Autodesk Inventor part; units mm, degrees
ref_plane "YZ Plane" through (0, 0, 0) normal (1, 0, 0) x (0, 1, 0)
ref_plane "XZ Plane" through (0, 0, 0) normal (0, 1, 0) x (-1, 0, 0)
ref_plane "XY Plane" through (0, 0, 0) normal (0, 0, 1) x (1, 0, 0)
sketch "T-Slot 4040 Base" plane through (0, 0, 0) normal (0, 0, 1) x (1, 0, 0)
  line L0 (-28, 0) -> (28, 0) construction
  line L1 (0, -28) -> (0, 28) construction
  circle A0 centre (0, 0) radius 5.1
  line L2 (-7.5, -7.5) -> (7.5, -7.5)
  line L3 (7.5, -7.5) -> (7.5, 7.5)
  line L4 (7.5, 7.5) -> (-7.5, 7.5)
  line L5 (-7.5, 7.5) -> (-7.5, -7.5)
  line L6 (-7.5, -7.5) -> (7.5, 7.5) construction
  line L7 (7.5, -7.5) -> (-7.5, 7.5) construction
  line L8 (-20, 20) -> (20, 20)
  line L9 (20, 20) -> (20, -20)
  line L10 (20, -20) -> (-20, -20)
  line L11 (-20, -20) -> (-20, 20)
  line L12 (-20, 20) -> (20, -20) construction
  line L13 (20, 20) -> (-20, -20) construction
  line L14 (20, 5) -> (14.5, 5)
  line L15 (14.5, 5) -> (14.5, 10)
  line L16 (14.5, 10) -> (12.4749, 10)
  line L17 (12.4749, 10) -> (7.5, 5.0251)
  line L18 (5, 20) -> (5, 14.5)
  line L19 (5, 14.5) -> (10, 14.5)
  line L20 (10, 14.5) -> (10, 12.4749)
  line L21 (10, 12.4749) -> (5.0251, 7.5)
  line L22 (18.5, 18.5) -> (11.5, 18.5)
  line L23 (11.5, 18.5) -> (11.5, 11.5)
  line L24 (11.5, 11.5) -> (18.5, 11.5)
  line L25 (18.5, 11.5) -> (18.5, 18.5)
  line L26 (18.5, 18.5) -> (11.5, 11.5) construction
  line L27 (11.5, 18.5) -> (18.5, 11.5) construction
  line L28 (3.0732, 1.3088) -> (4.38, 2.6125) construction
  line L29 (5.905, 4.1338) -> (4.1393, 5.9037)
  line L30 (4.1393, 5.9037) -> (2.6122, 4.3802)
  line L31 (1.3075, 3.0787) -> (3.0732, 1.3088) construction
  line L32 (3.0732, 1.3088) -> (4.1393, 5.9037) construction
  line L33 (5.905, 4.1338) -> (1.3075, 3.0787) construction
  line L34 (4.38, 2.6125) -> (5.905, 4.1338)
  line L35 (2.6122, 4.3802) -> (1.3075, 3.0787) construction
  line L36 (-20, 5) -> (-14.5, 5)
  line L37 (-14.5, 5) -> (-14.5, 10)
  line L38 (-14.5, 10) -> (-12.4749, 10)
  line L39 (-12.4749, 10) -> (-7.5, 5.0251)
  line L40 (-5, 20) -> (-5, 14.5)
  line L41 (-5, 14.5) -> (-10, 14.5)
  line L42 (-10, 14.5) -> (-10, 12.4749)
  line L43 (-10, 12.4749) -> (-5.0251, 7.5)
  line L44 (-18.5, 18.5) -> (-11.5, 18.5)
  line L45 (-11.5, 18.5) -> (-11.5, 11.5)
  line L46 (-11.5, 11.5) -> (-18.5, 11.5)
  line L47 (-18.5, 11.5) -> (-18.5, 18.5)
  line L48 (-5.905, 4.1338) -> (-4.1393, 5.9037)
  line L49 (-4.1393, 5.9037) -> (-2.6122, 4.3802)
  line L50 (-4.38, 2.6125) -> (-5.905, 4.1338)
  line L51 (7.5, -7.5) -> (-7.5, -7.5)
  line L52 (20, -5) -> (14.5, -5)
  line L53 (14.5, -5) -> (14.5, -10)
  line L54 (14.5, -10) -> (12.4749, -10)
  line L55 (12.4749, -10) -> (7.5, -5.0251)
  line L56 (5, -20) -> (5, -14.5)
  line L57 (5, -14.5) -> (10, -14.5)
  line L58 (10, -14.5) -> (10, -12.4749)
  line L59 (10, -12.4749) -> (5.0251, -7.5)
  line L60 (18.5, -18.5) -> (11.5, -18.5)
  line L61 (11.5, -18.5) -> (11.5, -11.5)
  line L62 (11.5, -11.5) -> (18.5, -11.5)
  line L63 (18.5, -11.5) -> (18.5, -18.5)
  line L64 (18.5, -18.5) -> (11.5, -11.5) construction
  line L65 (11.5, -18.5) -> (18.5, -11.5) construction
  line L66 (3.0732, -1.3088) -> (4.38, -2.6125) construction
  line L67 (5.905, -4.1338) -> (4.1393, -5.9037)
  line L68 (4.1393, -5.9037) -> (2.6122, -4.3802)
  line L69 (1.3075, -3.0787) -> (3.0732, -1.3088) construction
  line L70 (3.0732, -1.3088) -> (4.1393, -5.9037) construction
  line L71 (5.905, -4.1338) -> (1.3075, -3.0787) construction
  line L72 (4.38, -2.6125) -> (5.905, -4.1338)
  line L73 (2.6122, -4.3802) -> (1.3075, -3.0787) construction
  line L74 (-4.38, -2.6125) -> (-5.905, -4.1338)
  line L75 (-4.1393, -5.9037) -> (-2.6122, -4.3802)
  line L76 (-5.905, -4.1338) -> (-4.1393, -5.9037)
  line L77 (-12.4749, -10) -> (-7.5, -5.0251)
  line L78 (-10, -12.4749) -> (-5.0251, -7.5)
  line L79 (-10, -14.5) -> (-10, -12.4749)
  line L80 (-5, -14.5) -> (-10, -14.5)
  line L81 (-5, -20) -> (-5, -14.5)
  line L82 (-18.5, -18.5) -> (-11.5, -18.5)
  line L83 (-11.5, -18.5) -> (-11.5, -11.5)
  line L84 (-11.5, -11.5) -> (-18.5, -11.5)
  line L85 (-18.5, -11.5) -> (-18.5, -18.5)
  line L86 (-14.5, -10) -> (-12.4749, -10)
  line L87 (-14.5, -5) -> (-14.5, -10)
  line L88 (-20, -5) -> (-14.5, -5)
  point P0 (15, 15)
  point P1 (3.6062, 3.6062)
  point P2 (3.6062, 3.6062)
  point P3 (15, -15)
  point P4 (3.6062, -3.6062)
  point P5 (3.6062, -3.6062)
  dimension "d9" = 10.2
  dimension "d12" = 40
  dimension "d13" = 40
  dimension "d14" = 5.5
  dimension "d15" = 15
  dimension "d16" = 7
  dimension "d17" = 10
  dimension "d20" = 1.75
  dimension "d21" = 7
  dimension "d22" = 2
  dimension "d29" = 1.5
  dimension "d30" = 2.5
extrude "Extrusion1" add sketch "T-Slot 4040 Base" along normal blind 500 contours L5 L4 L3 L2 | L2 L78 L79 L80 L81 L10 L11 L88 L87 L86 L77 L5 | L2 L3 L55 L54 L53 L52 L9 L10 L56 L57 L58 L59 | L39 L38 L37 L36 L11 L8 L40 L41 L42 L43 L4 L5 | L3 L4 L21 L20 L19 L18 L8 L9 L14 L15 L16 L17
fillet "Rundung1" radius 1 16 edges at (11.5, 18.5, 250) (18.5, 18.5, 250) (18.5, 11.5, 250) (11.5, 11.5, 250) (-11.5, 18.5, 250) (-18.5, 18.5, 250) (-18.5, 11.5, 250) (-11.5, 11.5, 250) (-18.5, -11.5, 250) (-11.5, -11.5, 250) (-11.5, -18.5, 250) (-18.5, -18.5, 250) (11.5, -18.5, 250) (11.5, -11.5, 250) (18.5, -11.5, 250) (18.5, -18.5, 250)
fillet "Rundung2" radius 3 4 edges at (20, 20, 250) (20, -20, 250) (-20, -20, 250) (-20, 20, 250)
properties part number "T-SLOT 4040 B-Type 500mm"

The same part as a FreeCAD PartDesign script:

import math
import FreeCAD as App
import Part
import Sketcher
from FreeCAD import Vector
Q = App.Units.Quantity


def edges_at(feature, points):
    """Names of the edges that pass closest to the given points."""
    edges = feature.Shape.Edges
    near = lambda p: min(range(len(edges)), key=lambda i: edges[i].distToShape(Part.Vertex(*p))[0])
    return sorted({f"Edge{near(p) + 1}" for p in points})


def add_polygon(sketch, points):
    """Adds a closed chain of lines whose ends are joined by coincident constraints."""
    first, n = sketch.GeometryCount, len(points)
    for a, b in zip(points, points[1:] + points[:1]):
        sketch.addGeometry(Part.LineSegment(App.Vector(*a, 0), App.Vector(*b, 0)), False)
    for i in range(n):
        sketch.addConstraint(Sketcher.Constraint("Coincident", first + i, 2, first + (i + 1) % n, 1))

doc = App.newDocument("Part")
params = doc.addObject("Spreadsheet::Sheet", "Params")
for row, (alias, value) in enumerate([
    ("sketch1_radius", "5.1 mm"),
    ("sketch1_width", "15 mm"),
    ("sketch1_width2", "7 mm"),
    ("sketch1_width3", "5.5 mm"),
    ("sketch1_length", "2.5 mm"),
    ("pad1_length", "500 mm"),
    ("fillet_radius", "1 mm"),
    ("fillet2_radius", "3 mm"),
], start=1):
    params.set(f"A{row}", alias)
    params.set(f"B{row}", "=" + value)
    params.setAlias(f"B{row}", alias)

body = doc.addObject("PartDesign::Body", "Body")

sketch1 = body.newObject("Sketcher::SketchObject", "Sketch")
sketch1.AttachmentSupport = (doc.getObject("XY_Plane"), [""])
sketch1.MapMode = "FlatFace"
add_polygon(sketch1, [(-7.5, 5), (-7.5, -5), (-12.5, -10), (-14.5, -10), (-14.5, -5), (-20, -5), (-20, -20), (-5, -20), (-5, -14.5), (-10, -14.5), (-10, -12.5), (-5, -7.5), (5, -7.5), (10, -12.5), (10, -14.5), (5, -14.5), (5, -20), (20, -20), (20, -5), (14.5, -5), (14.5, -10), (12.5, -10), (7.5, -5), (7.5, 5), (12.5, 10), (14.5, 10), (14.5, 5), (20, 5), (20, 20), (5, 20), (5, 14.5), (10, 14.5), (10, 12.5), (5, 7.5), (-5, 7.5), (-10, 12.5), (-10, 14.5), (-5, 14.5), (-5, 20), (-20, 20), (-20, 5), (-14.5, 5), (-14.5, 10), (-12.5, 10)])
sketch1.addGeometry(Part.ArcOfCircle(Part.Circle(Vector(0, 0, 0), Vector(0, 0, 1), 5.1), math.radians(-31), math.radians(31)), False)
sketch1.addGeometry(Part.LineSegment(Vector(4.4, -2.6, 0), Vector(5.9, -4.1, 0)), False)
sketch1.addGeometry(Part.LineSegment(Vector(5.9, -4.1, 0), Vector(4.1, -5.9, 0)), False)
sketch1.addGeometry(Part.LineSegment(Vector(4.1, -5.9, 0), Vector(2.6, -4.4, 0)), False)
sketch1.addGeometry(Part.ArcOfCircle(Part.Circle(Vector(0, 0, 0), Vector(0, 0, 1), 5.1), math.radians(-121), math.radians(-59)), False)
sketch1.addGeometry(Part.LineSegment(Vector(-2.6, -4.4, 0), Vector(-4.1, -5.9, 0)), False)
sketch1.addGeometry(Part.LineSegment(Vector(-4.1, -5.9, 0), Vector(-5.9, -4.1, 0)), False)
sketch1.addGeometry(Part.LineSegment(Vector(-5.9, -4.1, 0), Vector(-4.4, -2.6, 0)), False)
sketch1.addGeometry(Part.ArcOfCircle(Part.Circle(Vector(0, 0, 0), Vector(0, 0, 1), 5.1), math.radians(149), math.radians(211)), False)
sketch1.addGeometry(Part.LineSegment(Vector(-4.4, 2.6, 0), Vector(-5.9, 4.1, 0)), False)
sketch1.addGeometry(Part.LineSegment(Vector(-5.9, 4.1, 0), Vector(-4.1, 5.9, 0)), False)
sketch1.addGeometry(Part.LineSegment(Vector(-4.1, 5.9, 0), Vector(-2.6, 4.4, 0)), False)
sketch1.addGeometry(Part.ArcOfCircle(Part.Circle(Vector(0, 0, 0), Vector(0, 0, 1), 5.1), math.radians(59), math.radians(121)), False)
sketch1.addGeometry(Part.LineSegment(Vector(2.6, 4.4, 0), Vector(4.1, 5.9, 0)), False)
sketch1.addGeometry(Part.LineSegment(Vector(4.1, 5.9, 0), Vector(5.9, 4.1, 0)), False)
sketch1.addGeometry(Part.LineSegment(Vector(5.9, 4.1, 0), Vector(4.4, 2.6, 0)), False)
add_polygon(sketch1, [(-18.5, -11.5), (-11.5, -11.5), (-11.5, -18.5), (-18.5, -18.5)])
add_polygon(sketch1, [(-11.5, 18.5), (-11.5, 11.5), (-18.5, 11.5), (-18.5, 18.5)])
add_polygon(sketch1, [(18.5, 11.5), (11.5, 11.5), (11.5, 18.5), (18.5, 18.5)])
add_polygon(sketch1, [(11.5, -18.5), (11.5, -11.5), (18.5, -11.5), (18.5, -18.5)])
sketch1.addConstraint(Sketcher.Constraint("Coincident", 44, 1, 45, 1))
sketch1.addConstraint(Sketcher.Constraint("Coincident", 45, 2, 46, 1))
sketch1.addConstraint(Sketcher.Constraint("Coincident", 46, 2, 47, 1))
sketch1.addConstraint(Sketcher.Constraint("Coincident", 47, 2, 48, 2))
sketch1.addConstraint(Sketcher.Constraint("Coincident", 48, 1, 49, 1))
sketch1.addConstraint(Sketcher.Constraint("Coincident", 49, 2, 50, 1))
sketch1.addConstraint(Sketcher.Constraint("Coincident", 50, 2, 51, 1))
sketch1.addConstraint(Sketcher.Constraint("Coincident", 51, 2, 52, 2))
sketch1.addConstraint(Sketcher.Constraint("Coincident", 52, 1, 53, 1))
sketch1.addConstraint(Sketcher.Constraint("Coincident", 53, 2, 54, 1))
sketch1.addConstraint(Sketcher.Constraint("Coincident", 54, 2, 55, 1))
sketch1.addConstraint(Sketcher.Constraint("Coincident", 55, 2, 56, 2))
sketch1.addConstraint(Sketcher.Constraint("Coincident", 56, 1, 57, 1))
sketch1.addConstraint(Sketcher.Constraint("Coincident", 57, 2, 58, 1))
sketch1.addConstraint(Sketcher.Constraint("Coincident", 58, 2, 59, 1))
sketch1.addConstraint(Sketcher.Constraint("Coincident", 59, 2, 44, 2))
sketch1.addConstraint(Sketcher.Constraint("Vertical", 0))
sketch1.addConstraint(Sketcher.Constraint("Horizontal", 2))
sketch1.addConstraint(Sketcher.Constraint("Vertical", 3))
sketch1.addConstraint(Sketcher.Constraint("Horizontal", 4))
sketch1.addConstraint(Sketcher.Constraint("Vertical", 5))
sketch1.addConstraint(Sketcher.Constraint("Horizontal", 6))
sketch1.addConstraint(Sketcher.Constraint("Vertical", 7))
sketch1.addConstraint(Sketcher.Constraint("Horizontal", 8))
sketch1.addConstraint(Sketcher.Constraint("Vertical", 9))
sketch1.addConstraint(Sketcher.Constraint("Horizontal", 11))
sketch1.addConstraint(Sketcher.Constraint("Vertical", 13))
sketch1.addConstraint(Sketcher.Constraint("Horizontal", 14))
sketch1.addConstraint(Sketcher.Constraint("Vertical", 15))
sketch1.addConstraint(Sketcher.Constraint("Horizontal", 16))
sketch1.addConstraint(Sketcher.Constraint("Vertical", 17))
sketch1.addConstraint(Sketcher.Constraint("Horizontal", 18))
sketch1.addConstraint(Sketcher.Constraint("Vertical", 19))
sketch1.addConstraint(Sketcher.Constraint("Horizontal", 20))
sketch1.addConstraint(Sketcher.Constraint("Vertical", 22))
sketch1.addConstraint(Sketcher.Constraint("Horizontal", 24))
sketch1.addConstraint(Sketcher.Constraint("Vertical", 25))
sketch1.addConstraint(Sketcher.Constraint("Horizontal", 26))
sketch1.addConstraint(Sketcher.Constraint("Vertical", 27))
sketch1.addConstraint(Sketcher.Constraint("Horizontal", 28))
sketch1.addConstraint(Sketcher.Constraint("Vertical", 29))
sketch1.addConstraint(Sketcher.Constraint("Horizontal", 30))
sketch1.addConstraint(Sketcher.Constraint("Vertical", 31))
sketch1.addConstraint(Sketcher.Constraint("Horizontal", 33))
sketch1.addConstraint(Sketcher.Constraint("Vertical", 35))
sketch1.addConstraint(Sketcher.Constraint("Horizontal", 36))
sketch1.addConstraint(Sketcher.Constraint("Vertical", 37))
sketch1.addConstraint(Sketcher.Constraint("Horizontal", 38))
sketch1.addConstraint(Sketcher.Constraint("Vertical", 39))
sketch1.addConstraint(Sketcher.Constraint("Horizontal", 40))
sketch1.addConstraint(Sketcher.Constraint("Vertical", 41))
sketch1.addConstraint(Sketcher.Constraint("Horizontal", 42))
sketch1.addConstraint(Sketcher.Constraint("Horizontal", 60))
sketch1.addConstraint(Sketcher.Constraint("Vertical", 61))
sketch1.addConstraint(Sketcher.Constraint("Horizontal", 62))
sketch1.addConstraint(Sketcher.Constraint("Vertical", 63))
sketch1.addConstraint(Sketcher.Constraint("Vertical", 64))
sketch1.addConstraint(Sketcher.Constraint("Horizontal", 65))
sketch1.addConstraint(Sketcher.Constraint("Vertical", 66))
sketch1.addConstraint(Sketcher.Constraint("Horizontal", 67))
sketch1.addConstraint(Sketcher.Constraint("Horizontal", 68))
sketch1.addConstraint(Sketcher.Constraint("Vertical", 69))
sketch1.addConstraint(Sketcher.Constraint("Horizontal", 70))
sketch1.addConstraint(Sketcher.Constraint("Vertical", 71))
sketch1.addConstraint(Sketcher.Constraint("Vertical", 72))
sketch1.addConstraint(Sketcher.Constraint("Horizontal", 73))
sketch1.addConstraint(Sketcher.Constraint("Vertical", 74))
sketch1.addConstraint(Sketcher.Constraint("Horizontal", 75))
sketch1.addConstraint(Sketcher.Constraint("Coincident", 44, 3, -1, 1))
sketch1.addConstraint(Sketcher.Constraint("Coincident", 48, 3, -1, 1))
sketch1.addConstraint(Sketcher.Constraint("Coincident", 52, 3, -1, 1))
sketch1.addConstraint(Sketcher.Constraint("Coincident", 56, 3, -1, 1))
sketch1.addConstraint(Sketcher.Constraint("Equal", 44, 48))
sketch1.addConstraint(Sketcher.Constraint("Equal", 48, 52))
sketch1.addConstraint(Sketcher.Constraint("Equal", 52, 56))
sketch1.addConstraint(Sketcher.Constraint("Symmetric", 0, 2, 22, 2, -1, 1))
sketch1.addConstraint(Sketcher.Constraint("Symmetric", 1, 2, 23, 2, -1, 1))
sketch1.addConstraint(Sketcher.Constraint("Symmetric", 3, 2, 25, 2, -1, 1))
sketch1.addConstraint(Sketcher.Constraint("Symmetric", 5, 2, 27, 2, -1, 1))
sketch1.addConstraint(Sketcher.Constraint("Symmetric", 7, 2, 29, 2, -1, 1))
sketch1.addConstraint(Sketcher.Constraint("Symmetric", 9, 2, 31, 2, -1, 1))
sketch1.addConstraint(Sketcher.Constraint("Symmetric", 10, 2, 32, 2, -1, 1))
sketch1.addConstraint(Sketcher.Constraint("Symmetric", 12, 2, 34, 2, -1, 1))
sketch1.addConstraint(Sketcher.Constraint("Symmetric", 14, 2, 36, 2, -1, 1))
sketch1.addConstraint(Sketcher.Constraint("Symmetric", 16, 2, 38, 2, -1, 1))
sketch1.addConstraint(Sketcher.Constraint("Symmetric", 18, 2, 40, 2, -1, 1))
sketch1.addConstraint(Sketcher.Constraint("Symmetric", 20, 2, 42, 2, -1, 1))
sketch1.addConstraint(Sketcher.Constraint("Symmetric", 45, 2, 53, 2, -1, 1))
sketch1.addConstraint(Sketcher.Constraint("Symmetric", 46, 2, 54, 2, -1, 1))
sketch1.addConstraint(Sketcher.Constraint("Symmetric", 49, 2, 57, 2, -1, 1))
sketch1.addConstraint(Sketcher.Constraint("Symmetric", 50, 2, 58, 2, -1, 1))
sketch1.addConstraint(Sketcher.Constraint("Symmetric", 60, 2, 68, 2, -1, 1))
sketch1.addConstraint(Sketcher.Constraint("Symmetric", 62, 2, 70, 2, -1, 1))
sketch1.addConstraint(Sketcher.Constraint("Symmetric", 64, 2, 72, 2, -1, 1))
sketch1.addConstraint(Sketcher.Constraint("Symmetric", 66, 2, 74, 2, -1, 1))
sketch1.addConstraint(Sketcher.Constraint("Symmetric", 9, 2, 12, 2, -2))
sketch1.addConstraint(Sketcher.Constraint("Symmetric", 7, 2, 14, 2, -2))
sketch1.addConstraint(Sketcher.Constraint("Symmetric", 5, 2, 16, 2, -2))
sketch1.addConstraint(Sketcher.Constraint("Symmetric", 3, 2, 18, 2, -2))
sketch1.addConstraint(Sketcher.Constraint("Symmetric", 1, 2, 20, 2, -2))
sketch1.addConstraint(Sketcher.Constraint("Symmetric", 46, 2, 49, 2, -2))
sketch1.addConstraint(Sketcher.Constraint("Symmetric", 45, 2, 50, 2, -2))
sketch1.addConstraint(Sketcher.Constraint("Symmetric", 64, 2, 68, 2, -2))
sketch1.addConstraint(Sketcher.Constraint("Symmetric", 66, 2, 70, 2, -2))
sketch1.addConstraint(Sketcher.Constraint("Parallel", 1, 10))
sketch1.addConstraint(Sketcher.Constraint("Perpendicular", 10, 12))
sketch1.addConstraint(Sketcher.Constraint("Parallel", 12, 21))
sketch1.addConstraint(Sketcher.Constraint("Perpendicular", 32, 34))
sketch1.addConstraint(Sketcher.Constraint("Parallel", 34, 43))
sketch1.addConstraint(Sketcher.Constraint("Perpendicular", 45, 46))
sketch1.addConstraint(Sketcher.Constraint("Perpendicular", 46, 47))
sketch1.addConstraint(Sketcher.Constraint("Perpendicular", 49, 50))
sketch1.addConstraint(Sketcher.Constraint("Perpendicular", 50, 51))
sketch1.addConstraint(Sketcher.Constraint("Parallel", 47, 53))
sketch1.addConstraint(Sketcher.Constraint("Perpendicular", 54, 55))
sketch1.addConstraint(Sketcher.Constraint("Parallel", 51, 57))
sketch1.addConstraint(Sketcher.Constraint("Perpendicular", 58, 59))
sketch1.addConstraint(Sketcher.Constraint("Horizontal", 0, 2, 21, 2))
sketch1.addConstraint(Sketcher.Constraint("Equal", 33, 0))
sketch1.addConstraint(Sketcher.Constraint("Equal", 36, 3))
sketch1.addConstraint(Sketcher.Constraint("Equal", 38, 5))
sketch1.addConstraint(Sketcher.Constraint("Equal", 40, 7))
sketch1.addConstraint(Sketcher.Constraint("Equal", 42, 9))
sketch1.addConstraint(Sketcher.Constraint("Equal", 75, 61))
sketch1.addConstraint(Sketcher.Constraint("Equal", 1, 10))
sketch1.addConstraint(Sketcher.Constraint("Radius", 44, 5.1))
sketch1.addConstraint(Sketcher.Constraint("DistanceX", 6, 1, 6, 2, 15.0))
sketch1.addConstraint(Sketcher.Constraint("DistanceX", 60, 1, 60, 2, 7.0))
sketch1.addConstraint(Sketcher.Constraint("DistanceX", 4, 2, 4, 1, 5.5))
sketch1.addConstraint(Sketcher.Constraint("DistanceY", 1, 2, -1, 1, 10.0))
sketch1.addConstraint(Sketcher.Constraint("Distance", 46, 2.5))
sketch1.addConstraint(Sketcher.Constraint("DistanceX", 8, 2, 8, 1, 5.0))
sketch1.addConstraint(Sketcher.Constraint("DistanceX", 0, 2, -1, 1, 7.5))
sketch1.addConstraint(Sketcher.Constraint("DistanceX", 60, 2, -1, 1, 11.5))
sketch1.addConstraint(Sketcher.Constraint("DistanceY", 60, 2, -1, 1, 11.5))
sketch1.addConstraint(Sketcher.Constraint("Angle", 45, Q("-44.9304 deg")))
sketch1.addConstraint(Sketcher.Constraint("DistanceX", 2, 2, 2, 1, 2.025))
sketch1.addConstraint(Sketcher.Constraint("DistanceX", -1, 1, 44, 1, 4.38))
sketch1.addConstraint(Sketcher.Constraint("Distance", 45, 2.154))
sketch1.setExpression("Constraints[185]", "Params.sketch1_radius")
sketch1.setExpression("Constraints[186]", "Params.sketch1_width")
sketch1.setExpression("Constraints[187]", "Params.sketch1_width2")
sketch1.setExpression("Constraints[188]", "Params.sketch1_width3")
sketch1.setExpression("Constraints[190]", "Params.sketch1_length")
pad1 = body.newObject("PartDesign::Pad", "Pad")
pad1.Profile = sketch1
pad1.setExpression("Length", "Params.pad1_length")
doc.recompute()

fillet = body.newObject("PartDesign::Fillet", "Fillet")
fillet.Base = (pad1, edges_at(pad1, [
    (11.5, 18.5, 250),
    (18.5, 18.5, 250),
    (18.5, 11.5, 250),
    (11.5, 11.5, 250),
    (-11.5, 18.5, 250),
    (-18.5, 18.5, 250),
    (-18.5, 11.5, 250),
    (-11.5, 11.5, 250),
    (-18.5, -11.5, 250),
    (-11.5, -11.5, 250),
    (-11.5, -18.5, 250),
    (-18.5, -18.5, 250),
    (11.5, -18.5, 250),
    (11.5, -11.5, 250),
    (18.5, -11.5, 250),
    (18.5, -18.5, 250),
]))
fillet.setExpression("Radius", "Params.fillet_radius")
doc.recompute()

fillet2 = body.newObject("PartDesign::Fillet", "Fillet001")
fillet2.Base = (fillet, edges_at(fillet, [
    (20, 20, 250),
    (20, -20, 250),
    (-20, -20, 250),
    (-20, 20, 250),
]))
fillet2.setExpression("Radius", "Params.fillet2_radius")

doc.recompute()
